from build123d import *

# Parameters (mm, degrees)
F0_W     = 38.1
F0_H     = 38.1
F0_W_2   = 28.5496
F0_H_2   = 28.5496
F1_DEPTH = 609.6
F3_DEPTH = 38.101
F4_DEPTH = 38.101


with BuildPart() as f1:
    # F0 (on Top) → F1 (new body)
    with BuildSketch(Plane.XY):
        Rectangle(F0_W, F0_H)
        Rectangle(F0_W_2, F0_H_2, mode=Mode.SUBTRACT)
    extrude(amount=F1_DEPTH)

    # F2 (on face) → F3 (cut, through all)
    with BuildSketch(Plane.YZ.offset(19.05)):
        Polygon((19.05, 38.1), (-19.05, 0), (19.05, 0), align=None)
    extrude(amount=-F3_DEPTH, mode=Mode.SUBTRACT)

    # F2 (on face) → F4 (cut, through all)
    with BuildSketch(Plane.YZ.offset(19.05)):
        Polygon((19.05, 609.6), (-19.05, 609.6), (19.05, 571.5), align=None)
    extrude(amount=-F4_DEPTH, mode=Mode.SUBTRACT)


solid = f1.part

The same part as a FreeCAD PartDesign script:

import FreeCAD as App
import Part
import Sketcher

V = App.Vector
Q = App.Units.Quantity

doc = App.newDocument("Part")
body = doc.addObject("PartDesign::Body", "Body")

# Sketch on XY plane
sketch1 = doc.addObject("Sketcher::SketchObject", "Sketch")
body.addObject(sketch1)
sketch1.AttachmentSupport = (doc.XY_Plane, [""])
sketch1.MapMode = "FlatFace"
sketch1.addGeometry(Part.LineSegment(V(-19, 19, 0), V(-19, -19, 0)), False)
sketch1.addGeometry(Part.LineSegment(V(-19, -19, 0), V(19, -19, 0)), False)
sketch1.addGeometry(Part.LineSegment(V(19, -19, 0), V(19, 19, 0)), False)
sketch1.addGeometry(Part.LineSegment(V(19, 19, 0), V(-19, 19, 0)), False)
sketch1.addGeometry(Part.LineSegment(V(14, -14, 0), V(-14, -14, 0)), False)
sketch1.addGeometry(Part.LineSegment(V(-14, -14, 0), V(-14, 14, 0)), False)
sketch1.addGeometry(Part.LineSegment(V(-14, 14, 0), V(14, 14, 0)), False)
sketch1.addGeometry(Part.LineSegment(V(14, 14, 0), V(14, -14, 0)), False)
sketch1.addConstraint(Sketcher.Constraint("Coincident", 0, 2, 1, 1))
sketch1.addConstraint(Sketcher.Constraint("Coincident", 1, 2, 2, 1))
sketch1.addConstraint(Sketcher.Constraint("Coincident", 2, 2, 3, 1))
sketch1.addConstraint(Sketcher.Constraint("Coincident", 3, 2, 0, 1))
sketch1.addConstraint(Sketcher.Constraint("Coincident", 4, 2, 5, 1))
sketch1.addConstraint(Sketcher.Constraint("Coincident", 5, 2, 6, 1))
sketch1.addConstraint(Sketcher.Constraint("Coincident", 6, 2, 7, 1))
sketch1.addConstraint(Sketcher.Constraint("Coincident", 7, 2, 4, 1))
sketch1.addConstraint(Sketcher.Constraint("Vertical", 0))
sketch1.addConstraint(Sketcher.Constraint("Horizontal", 1))
sketch1.addConstraint(Sketcher.Constraint("Vertical", 2))
sketch1.addConstraint(Sketcher.Constraint("Horizontal", 3))
sketch1.addConstraint(Sketcher.Constraint("Horizontal", 4))
sketch1.addConstraint(Sketcher.Constraint("Vertical", 5))
sketch1.addConstraint(Sketcher.Constraint("Horizontal", 6))
sketch1.addConstraint(Sketcher.Constraint("Vertical", 7))
sketch1.addConstraint(Sketcher.Constraint("Symmetric", 0, 2, 2, 2, -1, 1))
sketch1.addConstraint(Sketcher.Constraint("Symmetric", 4, 2, 6, 2, -1, 1))
sketch1.addConstraint(Sketcher.Constraint("Equal", 3, 0))
sketch1.addConstraint(Sketcher.Constraint("Equal", 6, 5))
sketch1.addConstraint(Sketcher.Constraint("DistanceX", 1, 1, 1, 2, Q("1.5 in")))
sketch1.addConstraint(Sketcher.Constraint("DistanceX", 4, 2, 4, 1, Q("1.124 in")))
pad1 = doc.addObject("PartDesign::Pad", "Pad")
body.addObject(pad1)
pad1.Profile = sketch1
pad1.Length = Q("24 in")

# Sketch on YZ plane
sketch2 = doc.addObject("Sketcher::SketchObject", "Sketch001")
body.addObject(sketch2)
sketch2.AttachmentSupport = (doc.YZ_Plane, [""])
sketch2.MapMode = "FlatFace"
sketch2.AttachmentOffset = App.Placement(V(0, 0, 0.75 * 25.4), App.Rotation())
sketch2.addGeometry(Part.LineSegment(V(19, 38, 0), V(-19, 0, 0)), False)
sketch2.addGeometry(Part.LineSegment(V(-19, 0, 0), V(19, 0, 0)), False)
sketch2.addGeometry(Part.LineSegment(V(19, 0, 0), V(19, 38, 0)), False)
sketch2.addConstraint(Sketcher.Constraint("Coincident", 0, 2, 1, 1))
sketch2.addConstraint(Sketcher.Constraint("Coincident", 1, 2, 2, 1))
sketch2.addConstraint(Sketcher.Constraint("Coincident", 2, 2, 0, 1))
sketch2.addConstraint(Sketcher.Constraint("Horizontal", 1))
sketch2.addConstraint(Sketcher.Constraint("Vertical", 2))
sketch2.addConstraint(Sketcher.Constraint("Symmetric", 0, 2, 1, 2, -1, 1))
sketch2.addConstraint(Sketcher.Constraint("Equal", 1, 2))
sketch2.addConstraint(Sketcher.Constraint("DistanceX", 1, 1, 1, 2, Q("1.5 in")))
pocket1 = doc.addObject("PartDesign::Pocket", "Pocket")
body.addObject(pocket1)
pocket1.Profile = sketch2
pocket1.Type = "ThroughAll"

# Sketch on YZ plane
sketch3 = doc.addObject("Sketcher::SketchObject", "Sketch002")
body.addObject(sketch3)
sketch3.AttachmentSupport = (doc.YZ_Plane, [""])
sketch3.MapMode = "FlatFace"
sketch3.AttachmentOffset = App.Placement(V(0, 0, 0.75 * 25.4), App.Rotation())
sketch3.addGeometry(Part.LineSegment(V(19, 610, 0), V(-19, 610, 0)), False)
sketch3.addGeometry(Part.LineSegment(V(-19, 610, 0), V(19, 572, 0)), False)
sketch3.addGeometry(Part.LineSegment(V(19, 572, 0), V(19, 610, 0)), False)
sketch3.addConstraint(Sketcher.Constraint("Coincident", 0, 2, 1, 1))
sketch3.addConstraint(Sketcher.Constraint("Coincident", 1, 2, 2, 1))
sketch3.addConstraint(Sketcher.Constraint("Coincident", 2, 2, 0, 1))
sketch3.addConstraint(Sketcher.Constraint("Horizontal", 0))
sketch3.addConstraint(Sketcher.Constraint("Vertical", 2))
sketch3.addConstraint(Sketcher.Constraint("Equal", 0, 2))
sketch3.addConstraint(Sketcher.Constraint("DistanceX", 0, 2, 0, 1, Q("1.5 in")))
sketch3.addConstraint(Sketcher.Constraint("DistanceY", -1, 1, 0, 2, Q("24 in")))
sketch3.addConstraint(Sketcher.Constraint("DistanceX", 0, 2, -1, 1, Q("0.75 in")))
pocket2 = doc.addObject("PartDesign::Pocket", "Pocket001")
body.addObject(pocket2)
pocket2.Profile = sketch3
pocket2.Type = "ThroughAll"

doc.recompute()
